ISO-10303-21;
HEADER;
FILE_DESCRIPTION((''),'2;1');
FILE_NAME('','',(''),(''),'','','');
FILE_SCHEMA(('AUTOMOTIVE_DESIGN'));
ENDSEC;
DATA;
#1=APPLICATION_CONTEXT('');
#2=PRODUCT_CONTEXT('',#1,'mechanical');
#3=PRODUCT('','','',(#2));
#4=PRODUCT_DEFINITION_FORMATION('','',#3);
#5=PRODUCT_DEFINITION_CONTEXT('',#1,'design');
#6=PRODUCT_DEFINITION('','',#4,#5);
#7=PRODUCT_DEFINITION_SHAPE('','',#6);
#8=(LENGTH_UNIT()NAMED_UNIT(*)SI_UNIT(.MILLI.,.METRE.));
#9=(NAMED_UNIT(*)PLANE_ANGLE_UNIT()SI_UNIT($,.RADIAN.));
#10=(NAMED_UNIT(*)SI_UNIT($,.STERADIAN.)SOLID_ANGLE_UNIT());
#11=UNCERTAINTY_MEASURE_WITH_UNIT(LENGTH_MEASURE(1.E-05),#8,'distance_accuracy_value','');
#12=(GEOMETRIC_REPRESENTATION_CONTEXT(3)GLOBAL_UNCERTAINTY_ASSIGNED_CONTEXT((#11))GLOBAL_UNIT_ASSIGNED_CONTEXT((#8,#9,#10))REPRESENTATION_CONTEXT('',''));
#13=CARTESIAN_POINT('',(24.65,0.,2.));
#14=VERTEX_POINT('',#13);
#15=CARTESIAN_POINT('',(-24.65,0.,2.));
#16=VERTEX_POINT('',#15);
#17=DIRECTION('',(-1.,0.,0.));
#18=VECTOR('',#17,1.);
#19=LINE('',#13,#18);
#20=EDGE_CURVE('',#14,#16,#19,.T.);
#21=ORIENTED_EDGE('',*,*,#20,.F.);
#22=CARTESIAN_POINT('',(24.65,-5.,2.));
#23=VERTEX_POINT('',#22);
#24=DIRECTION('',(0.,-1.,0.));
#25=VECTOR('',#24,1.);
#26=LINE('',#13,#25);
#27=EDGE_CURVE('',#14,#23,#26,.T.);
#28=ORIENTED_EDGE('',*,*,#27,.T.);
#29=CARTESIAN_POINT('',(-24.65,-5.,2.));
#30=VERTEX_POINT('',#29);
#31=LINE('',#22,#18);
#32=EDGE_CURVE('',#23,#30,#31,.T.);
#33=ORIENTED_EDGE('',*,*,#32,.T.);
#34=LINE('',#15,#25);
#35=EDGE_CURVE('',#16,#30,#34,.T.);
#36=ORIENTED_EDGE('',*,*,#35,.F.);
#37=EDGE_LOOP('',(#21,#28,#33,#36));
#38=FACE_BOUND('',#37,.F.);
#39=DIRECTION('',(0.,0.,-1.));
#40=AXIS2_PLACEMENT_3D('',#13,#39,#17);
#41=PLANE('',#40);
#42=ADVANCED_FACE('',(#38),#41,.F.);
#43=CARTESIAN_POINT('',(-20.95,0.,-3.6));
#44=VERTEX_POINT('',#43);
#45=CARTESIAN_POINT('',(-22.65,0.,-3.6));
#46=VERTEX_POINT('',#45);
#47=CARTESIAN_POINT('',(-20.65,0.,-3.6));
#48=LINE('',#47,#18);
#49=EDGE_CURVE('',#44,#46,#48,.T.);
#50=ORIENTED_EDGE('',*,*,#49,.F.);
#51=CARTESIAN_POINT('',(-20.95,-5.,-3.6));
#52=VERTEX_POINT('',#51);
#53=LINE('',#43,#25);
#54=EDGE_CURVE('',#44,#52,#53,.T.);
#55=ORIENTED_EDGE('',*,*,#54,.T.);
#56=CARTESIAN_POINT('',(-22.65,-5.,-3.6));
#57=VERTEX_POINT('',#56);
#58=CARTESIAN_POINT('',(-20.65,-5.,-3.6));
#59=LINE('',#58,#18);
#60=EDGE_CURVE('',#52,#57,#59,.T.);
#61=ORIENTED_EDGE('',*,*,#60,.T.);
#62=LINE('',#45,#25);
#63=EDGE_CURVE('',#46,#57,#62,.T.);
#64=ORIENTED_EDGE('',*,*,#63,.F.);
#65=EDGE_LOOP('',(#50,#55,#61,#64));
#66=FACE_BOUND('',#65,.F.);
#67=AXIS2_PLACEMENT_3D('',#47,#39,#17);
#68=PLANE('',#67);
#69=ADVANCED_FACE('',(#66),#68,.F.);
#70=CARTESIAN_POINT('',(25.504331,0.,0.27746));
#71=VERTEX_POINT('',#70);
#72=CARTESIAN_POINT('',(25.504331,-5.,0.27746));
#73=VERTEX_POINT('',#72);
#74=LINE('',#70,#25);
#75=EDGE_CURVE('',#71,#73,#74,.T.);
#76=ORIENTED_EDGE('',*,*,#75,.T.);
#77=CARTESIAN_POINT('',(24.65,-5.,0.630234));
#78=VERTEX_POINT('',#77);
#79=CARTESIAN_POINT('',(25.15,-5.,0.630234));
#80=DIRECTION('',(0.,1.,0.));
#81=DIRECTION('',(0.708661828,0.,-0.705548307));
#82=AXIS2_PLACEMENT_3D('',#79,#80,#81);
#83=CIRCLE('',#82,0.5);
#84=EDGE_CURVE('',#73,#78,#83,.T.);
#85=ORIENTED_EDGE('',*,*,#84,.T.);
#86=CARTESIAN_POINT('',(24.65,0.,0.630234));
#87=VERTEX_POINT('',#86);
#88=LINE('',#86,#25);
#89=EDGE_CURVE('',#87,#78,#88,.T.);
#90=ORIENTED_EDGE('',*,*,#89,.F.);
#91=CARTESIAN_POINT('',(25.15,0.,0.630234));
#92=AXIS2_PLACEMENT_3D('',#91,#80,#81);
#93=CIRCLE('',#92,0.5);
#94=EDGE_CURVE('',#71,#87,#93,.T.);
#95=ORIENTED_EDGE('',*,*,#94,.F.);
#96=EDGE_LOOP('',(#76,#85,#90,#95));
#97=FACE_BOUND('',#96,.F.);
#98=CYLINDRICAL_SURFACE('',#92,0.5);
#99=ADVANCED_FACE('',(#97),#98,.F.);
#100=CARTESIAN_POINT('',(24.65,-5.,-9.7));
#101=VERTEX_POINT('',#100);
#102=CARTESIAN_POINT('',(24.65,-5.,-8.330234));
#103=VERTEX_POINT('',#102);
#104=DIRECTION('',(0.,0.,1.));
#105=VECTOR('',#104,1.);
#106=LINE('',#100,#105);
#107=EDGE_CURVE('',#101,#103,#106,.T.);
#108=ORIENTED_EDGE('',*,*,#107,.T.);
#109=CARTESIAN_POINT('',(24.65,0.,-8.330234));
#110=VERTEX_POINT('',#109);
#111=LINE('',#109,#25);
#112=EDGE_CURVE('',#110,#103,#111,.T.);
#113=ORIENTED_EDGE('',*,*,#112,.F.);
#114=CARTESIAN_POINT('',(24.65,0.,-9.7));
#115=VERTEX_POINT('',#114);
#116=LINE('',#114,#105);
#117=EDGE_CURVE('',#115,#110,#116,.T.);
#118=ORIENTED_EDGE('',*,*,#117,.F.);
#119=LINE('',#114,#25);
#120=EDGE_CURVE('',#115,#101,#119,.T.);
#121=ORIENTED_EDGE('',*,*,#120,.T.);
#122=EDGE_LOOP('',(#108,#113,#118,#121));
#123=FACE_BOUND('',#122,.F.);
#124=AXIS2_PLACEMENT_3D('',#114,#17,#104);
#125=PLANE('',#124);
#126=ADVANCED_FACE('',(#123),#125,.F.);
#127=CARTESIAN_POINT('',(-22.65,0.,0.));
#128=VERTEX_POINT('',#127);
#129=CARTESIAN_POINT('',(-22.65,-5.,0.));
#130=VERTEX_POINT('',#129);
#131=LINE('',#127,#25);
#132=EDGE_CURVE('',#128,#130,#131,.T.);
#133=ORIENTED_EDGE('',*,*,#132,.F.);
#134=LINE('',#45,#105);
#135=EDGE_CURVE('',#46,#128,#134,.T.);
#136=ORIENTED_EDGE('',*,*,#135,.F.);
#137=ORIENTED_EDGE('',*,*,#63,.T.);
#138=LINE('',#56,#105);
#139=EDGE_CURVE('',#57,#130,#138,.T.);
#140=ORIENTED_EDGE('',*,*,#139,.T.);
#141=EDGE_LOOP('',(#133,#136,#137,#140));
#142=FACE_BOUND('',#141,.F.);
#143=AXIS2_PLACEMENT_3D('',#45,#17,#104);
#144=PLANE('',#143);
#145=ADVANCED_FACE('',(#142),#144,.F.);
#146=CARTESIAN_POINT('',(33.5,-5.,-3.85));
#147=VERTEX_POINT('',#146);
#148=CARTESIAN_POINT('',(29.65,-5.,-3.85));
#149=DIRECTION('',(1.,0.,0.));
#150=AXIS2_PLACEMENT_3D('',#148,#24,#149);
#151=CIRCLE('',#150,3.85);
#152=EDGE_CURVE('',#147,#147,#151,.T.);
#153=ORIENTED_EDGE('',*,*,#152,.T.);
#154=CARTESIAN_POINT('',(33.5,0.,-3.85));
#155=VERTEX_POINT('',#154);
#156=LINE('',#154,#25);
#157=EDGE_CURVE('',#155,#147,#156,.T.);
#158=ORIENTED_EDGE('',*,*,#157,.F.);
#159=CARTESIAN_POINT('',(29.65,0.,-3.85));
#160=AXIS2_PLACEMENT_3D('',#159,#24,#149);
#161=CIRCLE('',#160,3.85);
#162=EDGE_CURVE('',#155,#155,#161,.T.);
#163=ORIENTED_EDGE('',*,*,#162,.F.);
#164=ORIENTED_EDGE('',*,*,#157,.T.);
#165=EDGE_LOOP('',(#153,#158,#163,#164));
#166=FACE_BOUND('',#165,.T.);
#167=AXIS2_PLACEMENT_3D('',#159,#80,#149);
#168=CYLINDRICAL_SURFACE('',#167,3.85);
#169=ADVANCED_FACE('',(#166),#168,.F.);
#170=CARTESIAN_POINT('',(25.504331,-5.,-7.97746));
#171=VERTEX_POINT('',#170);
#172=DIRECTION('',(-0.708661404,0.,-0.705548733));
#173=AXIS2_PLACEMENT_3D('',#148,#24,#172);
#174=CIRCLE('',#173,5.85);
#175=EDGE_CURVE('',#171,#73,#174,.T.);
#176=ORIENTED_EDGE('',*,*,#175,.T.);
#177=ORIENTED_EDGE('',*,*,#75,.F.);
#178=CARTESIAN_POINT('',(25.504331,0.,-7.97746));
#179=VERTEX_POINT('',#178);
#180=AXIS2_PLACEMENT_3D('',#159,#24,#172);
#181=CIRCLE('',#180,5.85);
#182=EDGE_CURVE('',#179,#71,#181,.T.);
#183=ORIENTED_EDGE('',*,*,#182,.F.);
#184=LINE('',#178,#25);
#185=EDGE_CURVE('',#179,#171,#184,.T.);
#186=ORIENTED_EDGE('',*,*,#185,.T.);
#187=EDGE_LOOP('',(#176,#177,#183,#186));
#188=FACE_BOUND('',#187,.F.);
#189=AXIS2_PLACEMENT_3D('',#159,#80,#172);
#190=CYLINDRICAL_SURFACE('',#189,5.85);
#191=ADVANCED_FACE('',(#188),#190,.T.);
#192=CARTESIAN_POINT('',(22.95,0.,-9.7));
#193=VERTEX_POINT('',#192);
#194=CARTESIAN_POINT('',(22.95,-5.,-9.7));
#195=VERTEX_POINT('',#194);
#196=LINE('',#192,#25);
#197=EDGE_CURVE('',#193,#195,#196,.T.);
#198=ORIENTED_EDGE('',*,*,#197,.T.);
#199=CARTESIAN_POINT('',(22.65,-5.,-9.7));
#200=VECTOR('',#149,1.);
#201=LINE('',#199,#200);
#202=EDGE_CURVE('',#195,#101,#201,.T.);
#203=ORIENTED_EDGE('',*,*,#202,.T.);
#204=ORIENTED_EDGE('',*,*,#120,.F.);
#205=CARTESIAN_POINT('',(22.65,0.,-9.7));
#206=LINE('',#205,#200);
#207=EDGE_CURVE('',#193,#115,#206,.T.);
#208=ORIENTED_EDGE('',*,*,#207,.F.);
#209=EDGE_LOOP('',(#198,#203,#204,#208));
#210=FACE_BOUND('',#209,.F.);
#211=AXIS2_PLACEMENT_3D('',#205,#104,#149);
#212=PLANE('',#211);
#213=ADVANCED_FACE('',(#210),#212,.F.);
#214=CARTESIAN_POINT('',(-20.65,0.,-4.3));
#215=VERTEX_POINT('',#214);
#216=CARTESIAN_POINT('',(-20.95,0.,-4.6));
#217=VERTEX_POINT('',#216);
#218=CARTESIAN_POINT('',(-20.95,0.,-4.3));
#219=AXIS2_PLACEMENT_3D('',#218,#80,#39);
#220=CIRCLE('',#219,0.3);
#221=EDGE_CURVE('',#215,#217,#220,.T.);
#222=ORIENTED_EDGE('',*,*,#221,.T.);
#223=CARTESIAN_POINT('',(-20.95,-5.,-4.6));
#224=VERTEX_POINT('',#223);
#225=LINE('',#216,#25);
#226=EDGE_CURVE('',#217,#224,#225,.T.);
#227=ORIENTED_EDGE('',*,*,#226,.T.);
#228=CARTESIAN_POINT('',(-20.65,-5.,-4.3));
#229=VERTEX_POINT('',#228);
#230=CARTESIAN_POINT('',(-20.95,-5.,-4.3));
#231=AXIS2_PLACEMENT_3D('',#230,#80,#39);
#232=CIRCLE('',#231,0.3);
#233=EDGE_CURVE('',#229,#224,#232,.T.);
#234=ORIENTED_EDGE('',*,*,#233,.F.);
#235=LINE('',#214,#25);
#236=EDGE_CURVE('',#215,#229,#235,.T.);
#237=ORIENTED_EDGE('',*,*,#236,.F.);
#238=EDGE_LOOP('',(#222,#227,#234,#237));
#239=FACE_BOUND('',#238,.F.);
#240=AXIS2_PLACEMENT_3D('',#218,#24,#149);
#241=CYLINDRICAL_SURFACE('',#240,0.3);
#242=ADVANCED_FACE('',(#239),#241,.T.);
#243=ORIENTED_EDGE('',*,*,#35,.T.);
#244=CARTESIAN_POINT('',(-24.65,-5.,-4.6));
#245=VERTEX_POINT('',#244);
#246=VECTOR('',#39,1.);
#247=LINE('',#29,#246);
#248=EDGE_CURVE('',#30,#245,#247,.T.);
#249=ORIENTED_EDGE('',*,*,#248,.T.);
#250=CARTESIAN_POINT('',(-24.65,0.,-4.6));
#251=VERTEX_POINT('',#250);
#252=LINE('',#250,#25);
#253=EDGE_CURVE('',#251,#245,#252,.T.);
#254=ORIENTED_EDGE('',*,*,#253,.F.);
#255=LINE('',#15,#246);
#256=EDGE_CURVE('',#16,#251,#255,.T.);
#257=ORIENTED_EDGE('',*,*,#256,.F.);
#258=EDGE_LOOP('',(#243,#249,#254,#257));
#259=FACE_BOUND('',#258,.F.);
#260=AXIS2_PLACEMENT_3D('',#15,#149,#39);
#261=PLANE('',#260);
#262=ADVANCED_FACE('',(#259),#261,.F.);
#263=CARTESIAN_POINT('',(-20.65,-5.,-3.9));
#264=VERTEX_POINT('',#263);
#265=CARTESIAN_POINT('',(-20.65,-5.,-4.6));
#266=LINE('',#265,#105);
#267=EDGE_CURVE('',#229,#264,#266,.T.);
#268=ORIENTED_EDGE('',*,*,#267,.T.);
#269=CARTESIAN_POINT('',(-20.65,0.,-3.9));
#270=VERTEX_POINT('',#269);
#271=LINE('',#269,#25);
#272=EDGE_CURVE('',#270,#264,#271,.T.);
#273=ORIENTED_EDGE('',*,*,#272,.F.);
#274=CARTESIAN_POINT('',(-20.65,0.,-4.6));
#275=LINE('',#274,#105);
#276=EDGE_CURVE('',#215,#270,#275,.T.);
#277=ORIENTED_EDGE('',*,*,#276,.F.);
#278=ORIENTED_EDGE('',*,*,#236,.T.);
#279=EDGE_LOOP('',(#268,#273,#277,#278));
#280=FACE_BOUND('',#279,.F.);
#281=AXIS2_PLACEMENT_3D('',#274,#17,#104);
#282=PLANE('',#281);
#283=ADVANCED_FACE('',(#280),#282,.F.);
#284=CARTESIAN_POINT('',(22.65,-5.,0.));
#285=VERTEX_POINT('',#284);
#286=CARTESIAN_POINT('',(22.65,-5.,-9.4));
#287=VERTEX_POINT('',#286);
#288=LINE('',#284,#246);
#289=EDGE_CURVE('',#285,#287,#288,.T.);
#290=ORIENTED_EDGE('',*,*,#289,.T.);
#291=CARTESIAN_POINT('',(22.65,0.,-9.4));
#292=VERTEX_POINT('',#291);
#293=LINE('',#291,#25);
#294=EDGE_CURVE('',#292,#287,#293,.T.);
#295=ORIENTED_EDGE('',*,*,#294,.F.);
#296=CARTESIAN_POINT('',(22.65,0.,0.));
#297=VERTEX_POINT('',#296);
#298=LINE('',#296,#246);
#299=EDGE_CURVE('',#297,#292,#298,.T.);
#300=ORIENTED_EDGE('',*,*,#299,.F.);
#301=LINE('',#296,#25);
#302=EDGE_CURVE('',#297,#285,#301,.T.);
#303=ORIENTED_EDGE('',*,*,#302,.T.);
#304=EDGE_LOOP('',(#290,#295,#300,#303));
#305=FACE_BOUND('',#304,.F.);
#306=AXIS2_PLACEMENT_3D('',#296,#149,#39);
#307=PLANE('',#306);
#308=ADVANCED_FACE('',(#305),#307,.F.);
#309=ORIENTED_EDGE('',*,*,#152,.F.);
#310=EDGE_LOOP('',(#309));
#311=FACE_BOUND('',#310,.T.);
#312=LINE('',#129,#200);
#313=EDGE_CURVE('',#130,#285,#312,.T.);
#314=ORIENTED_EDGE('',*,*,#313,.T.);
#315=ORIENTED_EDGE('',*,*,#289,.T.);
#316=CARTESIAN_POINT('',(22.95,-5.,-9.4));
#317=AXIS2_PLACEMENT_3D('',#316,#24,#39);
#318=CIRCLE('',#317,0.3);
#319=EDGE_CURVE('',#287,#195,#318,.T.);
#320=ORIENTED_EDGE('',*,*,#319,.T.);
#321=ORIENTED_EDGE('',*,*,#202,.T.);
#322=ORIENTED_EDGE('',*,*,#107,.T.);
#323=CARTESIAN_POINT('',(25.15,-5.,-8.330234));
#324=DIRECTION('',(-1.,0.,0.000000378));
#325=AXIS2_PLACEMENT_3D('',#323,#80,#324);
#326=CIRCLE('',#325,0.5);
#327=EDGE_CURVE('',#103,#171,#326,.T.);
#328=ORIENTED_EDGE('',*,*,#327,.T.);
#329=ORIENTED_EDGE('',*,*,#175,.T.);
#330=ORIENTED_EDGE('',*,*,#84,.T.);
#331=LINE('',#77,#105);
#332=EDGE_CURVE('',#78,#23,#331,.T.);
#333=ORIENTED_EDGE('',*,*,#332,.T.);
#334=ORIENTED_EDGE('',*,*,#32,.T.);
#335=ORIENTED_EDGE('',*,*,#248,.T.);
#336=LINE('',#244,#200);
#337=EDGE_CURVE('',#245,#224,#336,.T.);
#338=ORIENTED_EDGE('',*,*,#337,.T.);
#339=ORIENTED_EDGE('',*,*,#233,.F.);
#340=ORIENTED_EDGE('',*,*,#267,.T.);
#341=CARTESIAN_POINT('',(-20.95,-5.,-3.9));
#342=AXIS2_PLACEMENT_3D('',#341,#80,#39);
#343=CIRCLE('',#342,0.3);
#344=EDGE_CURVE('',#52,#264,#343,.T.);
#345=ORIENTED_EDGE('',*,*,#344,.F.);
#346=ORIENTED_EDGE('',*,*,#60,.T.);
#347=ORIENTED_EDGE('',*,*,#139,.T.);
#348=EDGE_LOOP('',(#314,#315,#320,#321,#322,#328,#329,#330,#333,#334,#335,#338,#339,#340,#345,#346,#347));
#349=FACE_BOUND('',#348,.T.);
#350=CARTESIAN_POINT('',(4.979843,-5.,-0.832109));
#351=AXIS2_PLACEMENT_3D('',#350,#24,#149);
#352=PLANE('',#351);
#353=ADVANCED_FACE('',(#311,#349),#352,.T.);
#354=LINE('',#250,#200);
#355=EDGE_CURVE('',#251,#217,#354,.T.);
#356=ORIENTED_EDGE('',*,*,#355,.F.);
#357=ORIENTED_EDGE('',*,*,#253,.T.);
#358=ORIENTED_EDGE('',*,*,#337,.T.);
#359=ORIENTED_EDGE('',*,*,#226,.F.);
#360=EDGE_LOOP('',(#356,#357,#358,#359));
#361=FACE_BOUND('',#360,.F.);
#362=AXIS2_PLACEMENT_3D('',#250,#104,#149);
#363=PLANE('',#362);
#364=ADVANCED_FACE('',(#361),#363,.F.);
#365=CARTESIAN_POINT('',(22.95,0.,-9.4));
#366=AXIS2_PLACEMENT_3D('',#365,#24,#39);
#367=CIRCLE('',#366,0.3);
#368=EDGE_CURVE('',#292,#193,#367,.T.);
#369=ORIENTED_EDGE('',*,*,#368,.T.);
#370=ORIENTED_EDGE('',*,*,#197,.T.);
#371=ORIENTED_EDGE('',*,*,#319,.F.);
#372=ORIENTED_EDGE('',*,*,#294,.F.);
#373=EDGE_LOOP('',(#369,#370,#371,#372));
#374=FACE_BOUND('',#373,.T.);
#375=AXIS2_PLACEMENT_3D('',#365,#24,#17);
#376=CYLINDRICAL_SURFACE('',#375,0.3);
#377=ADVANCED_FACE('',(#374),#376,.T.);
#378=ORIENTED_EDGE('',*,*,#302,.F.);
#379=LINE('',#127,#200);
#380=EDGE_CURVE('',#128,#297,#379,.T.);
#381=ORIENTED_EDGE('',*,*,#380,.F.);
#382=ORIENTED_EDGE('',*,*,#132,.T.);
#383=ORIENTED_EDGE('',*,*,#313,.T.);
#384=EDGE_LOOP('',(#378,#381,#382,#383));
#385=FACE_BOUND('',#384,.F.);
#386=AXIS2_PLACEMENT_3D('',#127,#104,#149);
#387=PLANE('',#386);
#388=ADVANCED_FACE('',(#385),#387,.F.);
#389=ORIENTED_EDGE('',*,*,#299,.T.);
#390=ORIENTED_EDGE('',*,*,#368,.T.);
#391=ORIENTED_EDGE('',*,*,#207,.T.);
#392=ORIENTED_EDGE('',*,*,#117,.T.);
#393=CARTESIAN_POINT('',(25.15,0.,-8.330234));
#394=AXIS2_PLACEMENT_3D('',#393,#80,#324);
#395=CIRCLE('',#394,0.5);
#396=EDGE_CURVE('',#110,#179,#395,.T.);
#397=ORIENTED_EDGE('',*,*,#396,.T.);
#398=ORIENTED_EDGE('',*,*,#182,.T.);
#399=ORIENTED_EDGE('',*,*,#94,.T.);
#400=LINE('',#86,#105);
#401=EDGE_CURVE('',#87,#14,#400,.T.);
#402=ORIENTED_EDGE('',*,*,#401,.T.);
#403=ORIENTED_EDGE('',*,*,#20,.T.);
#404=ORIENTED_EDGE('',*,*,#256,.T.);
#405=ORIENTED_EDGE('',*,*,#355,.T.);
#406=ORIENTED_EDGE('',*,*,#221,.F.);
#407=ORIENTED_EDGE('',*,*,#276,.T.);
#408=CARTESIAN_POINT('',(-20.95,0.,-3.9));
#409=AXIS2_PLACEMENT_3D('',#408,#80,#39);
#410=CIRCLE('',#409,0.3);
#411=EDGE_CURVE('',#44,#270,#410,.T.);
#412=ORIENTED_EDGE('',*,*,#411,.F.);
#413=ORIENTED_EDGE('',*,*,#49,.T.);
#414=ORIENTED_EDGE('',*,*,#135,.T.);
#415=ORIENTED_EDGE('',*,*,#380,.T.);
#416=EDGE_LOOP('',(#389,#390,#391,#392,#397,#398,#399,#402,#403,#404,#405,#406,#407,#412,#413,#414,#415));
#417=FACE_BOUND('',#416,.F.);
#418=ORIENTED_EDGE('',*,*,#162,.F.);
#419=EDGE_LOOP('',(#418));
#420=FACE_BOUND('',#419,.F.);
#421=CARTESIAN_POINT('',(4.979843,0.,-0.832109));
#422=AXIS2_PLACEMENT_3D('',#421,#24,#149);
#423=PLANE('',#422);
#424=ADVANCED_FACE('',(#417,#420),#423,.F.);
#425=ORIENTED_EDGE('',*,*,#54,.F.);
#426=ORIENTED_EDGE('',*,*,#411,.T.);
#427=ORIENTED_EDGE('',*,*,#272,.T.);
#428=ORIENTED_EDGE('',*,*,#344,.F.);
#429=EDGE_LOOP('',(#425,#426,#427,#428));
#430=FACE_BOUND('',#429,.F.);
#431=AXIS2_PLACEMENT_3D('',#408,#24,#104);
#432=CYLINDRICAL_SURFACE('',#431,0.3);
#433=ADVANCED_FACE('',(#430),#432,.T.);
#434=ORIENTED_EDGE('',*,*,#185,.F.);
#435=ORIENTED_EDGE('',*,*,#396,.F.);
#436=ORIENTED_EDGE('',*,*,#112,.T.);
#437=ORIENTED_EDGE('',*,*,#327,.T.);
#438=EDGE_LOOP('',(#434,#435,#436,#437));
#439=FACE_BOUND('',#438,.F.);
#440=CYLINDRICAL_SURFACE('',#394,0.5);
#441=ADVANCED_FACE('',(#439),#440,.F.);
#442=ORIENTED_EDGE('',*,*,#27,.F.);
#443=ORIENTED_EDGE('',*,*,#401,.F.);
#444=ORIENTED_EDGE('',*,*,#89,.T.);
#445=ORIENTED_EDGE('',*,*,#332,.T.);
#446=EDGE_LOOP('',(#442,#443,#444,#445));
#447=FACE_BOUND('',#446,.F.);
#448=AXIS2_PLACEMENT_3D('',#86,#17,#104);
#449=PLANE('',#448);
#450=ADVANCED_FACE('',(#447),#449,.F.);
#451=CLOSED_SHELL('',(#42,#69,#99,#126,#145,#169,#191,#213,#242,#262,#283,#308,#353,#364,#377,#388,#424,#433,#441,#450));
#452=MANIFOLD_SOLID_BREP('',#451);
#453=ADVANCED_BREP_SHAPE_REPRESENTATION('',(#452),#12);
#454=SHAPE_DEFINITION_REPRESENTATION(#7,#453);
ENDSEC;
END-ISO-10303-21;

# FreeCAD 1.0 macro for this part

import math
import FreeCAD as App
import Part
import Sketcher
Q = App.Units.Quantity


def edges_at(feature, points):
    """Names of the edges that pass closest to the given points."""
    edges = feature.Shape.Edges
    near = lambda p: min(range(len(edges)), key=lambda i: edges[i].distToShape(Part.Vertex(*p))[0])
    return sorted({f"Edge{near(p) + 1}" for p in points})

doc = App.newDocument("Part")
params = doc.addObject("Spreadsheet::Sheet", "Params")
for row, (alias, value) in enumerate([
    ("sketch1_diameter", "7.7 mm"),
    ("sketch1_radius", "0.5 mm"),
    ("sketch1_width", "2 mm"),
    ("sketch1_width2", "4 mm"),
    ("sketch1_height", "1 mm"),
    ("pad1_length", "5 mm"),
    ("fillet_radius", "0.3 mm"),
], start=1):
    params.set(f"A{row}", alias)
    params.set(f"B{row}", "=" + value)
    params.setAlias(f"B{row}", alias)

body = doc.addObject("PartDesign::Body", "Body")

# Sketch on XZ plane
sketch1 = doc.addObject("Sketcher::SketchObject", "Sketch")
body.addObject(sketch1)
sketch1.AttachmentSupport = (doc.XZ_Plane, [""])
sketch1.MapMode = "FlatFace"
sketch1.addGeometry([
    Part.LineSegment(App.Vector(-22.65, 0, 0), App.Vector(22.65, 0, 0)),  # 0
    Part.LineSegment(App.Vector(22.65, 0, 0), App.Vector(22.65, -9.7, 0)),  # 1
    Part.LineSegment(App.Vector(22.65, -9.7, 0), App.Vector(24.65, -9.7, 0)),  # 2
    Part.LineSegment(App.Vector(24.65, -9.7, 0), App.Vector(24.65, -8.330234, 0)),  # 3
    Part.ArcOfCircle(Part.Circle(App.Vector(25.15, -8.330234, 0), App.Vector(0, 0, 1), 0.5), math.radians(44.873858), math.radians(179.999978)),  # 4
    Part.ArcOfCircle(Part.Circle(App.Vector(29.65, -3.85, 0), App.Vector(0, 0, 1), 5.85), math.radians(-135.126108), math.radians(135.126108)),  # 5
    Part.ArcOfCircle(Part.Circle(App.Vector(25.15, 0.630234, 0), App.Vector(0, 0, 1), 0.5), math.radians(-179.999978), math.radians(-44.873858)),  # 6
    Part.LineSegment(App.Vector(24.65, 0.630234, 0), App.Vector(24.65, 2, 0)),  # 7
    Part.LineSegment(App.Vector(24.65, 2, 0), App.Vector(-24.65, 2, 0)),  # 8
    Part.LineSegment(App.Vector(-24.65, 2, 0), App.Vector(-24.65, -4.6, 0)),  # 9
    Part.LineSegment(App.Vector(-24.65, -4.6, 0), App.Vector(-20.65, -4.6, 0)),  # 10
    Part.LineSegment(App.Vector(-20.65, -4.6, 0), App.Vector(-20.65, -3.6, 0)),  # 11
    Part.LineSegment(App.Vector(-20.65, -3.6, 0), App.Vector(-22.65, -3.6, 0)),  # 12
    Part.LineSegment(App.Vector(-22.65, -3.6, 0), App.Vector(-22.65, 0, 0)),  # 13
    Part.Circle(App.Vector(29.65, -3.85, 0), App.Vector(0, 0, 1), 3.85),  # 14
], False)
sketch1.addConstraint([
    Sketcher.Constraint("Coincident", 0, 2, 1, 1),
    Sketcher.Constraint("Coincident", 1, 2, 2, 1),
    Sketcher.Constraint("Coincident", 2, 2, 3, 1),
    Sketcher.Constraint("Tangent", 3, 2, 4, 2),
    Sketcher.Constraint("Tangent", 4, 1, 5, 1),
    Sketcher.Constraint("Tangent", 5, 2, 6, 2),
    Sketcher.Constraint("Tangent", 6, 1, 7, 1),
    Sketcher.Constraint("Coincident", 7, 2, 8, 1),
    Sketcher.Constraint("Coincident", 8, 2, 9, 1),
    Sketcher.Constraint("Coincident", 9, 2, 10, 1),
    Sketcher.Constraint("Coincident", 10, 2, 11, 1),
    Sketcher.Constraint("Coincident", 11, 2, 12, 1),
    Sketcher.Constraint("Coincident", 12, 2, 13, 1),
    Sketcher.Constraint("Coincident", 13, 2, 0, 1),
    Sketcher.Constraint("Horizontal", 0),
    Sketcher.Constraint("Vertical", 1),
    Sketcher.Constraint("Horizontal", 2),
    Sketcher.Constraint("Vertical", 3),
    Sketcher.Constraint("Vertical", 7),
    Sketcher.Constraint("Horizontal", 8),
    Sketcher.Constraint("Vertical", 9),
    Sketcher.Constraint("Horizontal", 10),
    Sketcher.Constraint("Vertical", 11),
    Sketcher.Constraint("Horizontal", 12),
    Sketcher.Constraint("Vertical", 13),
    Sketcher.Constraint("Coincident", 14, 3, 5, 3),
    Sketcher.Constraint("Equal", 4, 6),
    Sketcher.Constraint("Symmetric", 0, 2, 13, 2, -1, 1),
    Sketcher.Constraint("Vertical", 4, 3, 6, 3),
    Sketcher.Constraint("Equal", 2, 12),
    Sketcher.Constraint("Equal", 3, 7),
    Sketcher.Constraint("Diameter", 14, Q("7.7 mm")),
    Sketcher.Constraint("Radius", 4, Q("0.5 mm")),
    Sketcher.Constraint("DistanceX", 2, 1, 2, 2, Q("2 mm")),
    Sketcher.Constraint("DistanceX", 10, 1, 10, 2, Q("4 mm")),
    Sketcher.Constraint("DistanceY", 11, 1, 11, 2, Q("1 mm")),
    Sketcher.Constraint("Radius", 5, Q("5.85 mm")),
    Sketcher.Constraint("DistanceX", 0, 1, 0, 2, Q("45.3 mm")),
    Sketcher.Constraint("DistanceY", 1, 2, 1, 1, Q("9.7 mm")),
    Sketcher.Constraint("DistanceY", 9, 2, 9, 1, Q("6.6 mm")),
    Sketcher.Constraint("DistanceY", 13, 1, 13, 2, Q("3.6 mm")),
    Sketcher.Constraint("DistanceX", 0, 2, 14, 3, Q("7 mm")),
])
sketch1.setExpression("Constraints[31]", "Params.sketch1_diameter")
sketch1.setExpression("Constraints[32]", "Params.sketch1_radius")
sketch1.setExpression("Constraints[33]", "Params.sketch1_width")
sketch1.setExpression("Constraints[34]", "Params.sketch1_width2")
sketch1.setExpression("Constraints[35]", "Params.sketch1_height")
pad1 = doc.addObject("PartDesign::Pad", "Pad")
body.addObject(pad1)
pad1.Profile = sketch1
pad1.setExpression("Length", "Params.pad1_length")
doc.recompute()

fillet = doc.addObject("PartDesign::Fillet", "Fillet")
body.addObject(fillet)
fillet.Base = (pad1, edges_at(pad1, [(-20.65, -2.5, -3.6), (-20.65, -2.5, -4.6), (22.65, -2.5, -9.7)]))
fillet.setExpression("Radius", "Params.fillet_radius")

doc.recompute()
